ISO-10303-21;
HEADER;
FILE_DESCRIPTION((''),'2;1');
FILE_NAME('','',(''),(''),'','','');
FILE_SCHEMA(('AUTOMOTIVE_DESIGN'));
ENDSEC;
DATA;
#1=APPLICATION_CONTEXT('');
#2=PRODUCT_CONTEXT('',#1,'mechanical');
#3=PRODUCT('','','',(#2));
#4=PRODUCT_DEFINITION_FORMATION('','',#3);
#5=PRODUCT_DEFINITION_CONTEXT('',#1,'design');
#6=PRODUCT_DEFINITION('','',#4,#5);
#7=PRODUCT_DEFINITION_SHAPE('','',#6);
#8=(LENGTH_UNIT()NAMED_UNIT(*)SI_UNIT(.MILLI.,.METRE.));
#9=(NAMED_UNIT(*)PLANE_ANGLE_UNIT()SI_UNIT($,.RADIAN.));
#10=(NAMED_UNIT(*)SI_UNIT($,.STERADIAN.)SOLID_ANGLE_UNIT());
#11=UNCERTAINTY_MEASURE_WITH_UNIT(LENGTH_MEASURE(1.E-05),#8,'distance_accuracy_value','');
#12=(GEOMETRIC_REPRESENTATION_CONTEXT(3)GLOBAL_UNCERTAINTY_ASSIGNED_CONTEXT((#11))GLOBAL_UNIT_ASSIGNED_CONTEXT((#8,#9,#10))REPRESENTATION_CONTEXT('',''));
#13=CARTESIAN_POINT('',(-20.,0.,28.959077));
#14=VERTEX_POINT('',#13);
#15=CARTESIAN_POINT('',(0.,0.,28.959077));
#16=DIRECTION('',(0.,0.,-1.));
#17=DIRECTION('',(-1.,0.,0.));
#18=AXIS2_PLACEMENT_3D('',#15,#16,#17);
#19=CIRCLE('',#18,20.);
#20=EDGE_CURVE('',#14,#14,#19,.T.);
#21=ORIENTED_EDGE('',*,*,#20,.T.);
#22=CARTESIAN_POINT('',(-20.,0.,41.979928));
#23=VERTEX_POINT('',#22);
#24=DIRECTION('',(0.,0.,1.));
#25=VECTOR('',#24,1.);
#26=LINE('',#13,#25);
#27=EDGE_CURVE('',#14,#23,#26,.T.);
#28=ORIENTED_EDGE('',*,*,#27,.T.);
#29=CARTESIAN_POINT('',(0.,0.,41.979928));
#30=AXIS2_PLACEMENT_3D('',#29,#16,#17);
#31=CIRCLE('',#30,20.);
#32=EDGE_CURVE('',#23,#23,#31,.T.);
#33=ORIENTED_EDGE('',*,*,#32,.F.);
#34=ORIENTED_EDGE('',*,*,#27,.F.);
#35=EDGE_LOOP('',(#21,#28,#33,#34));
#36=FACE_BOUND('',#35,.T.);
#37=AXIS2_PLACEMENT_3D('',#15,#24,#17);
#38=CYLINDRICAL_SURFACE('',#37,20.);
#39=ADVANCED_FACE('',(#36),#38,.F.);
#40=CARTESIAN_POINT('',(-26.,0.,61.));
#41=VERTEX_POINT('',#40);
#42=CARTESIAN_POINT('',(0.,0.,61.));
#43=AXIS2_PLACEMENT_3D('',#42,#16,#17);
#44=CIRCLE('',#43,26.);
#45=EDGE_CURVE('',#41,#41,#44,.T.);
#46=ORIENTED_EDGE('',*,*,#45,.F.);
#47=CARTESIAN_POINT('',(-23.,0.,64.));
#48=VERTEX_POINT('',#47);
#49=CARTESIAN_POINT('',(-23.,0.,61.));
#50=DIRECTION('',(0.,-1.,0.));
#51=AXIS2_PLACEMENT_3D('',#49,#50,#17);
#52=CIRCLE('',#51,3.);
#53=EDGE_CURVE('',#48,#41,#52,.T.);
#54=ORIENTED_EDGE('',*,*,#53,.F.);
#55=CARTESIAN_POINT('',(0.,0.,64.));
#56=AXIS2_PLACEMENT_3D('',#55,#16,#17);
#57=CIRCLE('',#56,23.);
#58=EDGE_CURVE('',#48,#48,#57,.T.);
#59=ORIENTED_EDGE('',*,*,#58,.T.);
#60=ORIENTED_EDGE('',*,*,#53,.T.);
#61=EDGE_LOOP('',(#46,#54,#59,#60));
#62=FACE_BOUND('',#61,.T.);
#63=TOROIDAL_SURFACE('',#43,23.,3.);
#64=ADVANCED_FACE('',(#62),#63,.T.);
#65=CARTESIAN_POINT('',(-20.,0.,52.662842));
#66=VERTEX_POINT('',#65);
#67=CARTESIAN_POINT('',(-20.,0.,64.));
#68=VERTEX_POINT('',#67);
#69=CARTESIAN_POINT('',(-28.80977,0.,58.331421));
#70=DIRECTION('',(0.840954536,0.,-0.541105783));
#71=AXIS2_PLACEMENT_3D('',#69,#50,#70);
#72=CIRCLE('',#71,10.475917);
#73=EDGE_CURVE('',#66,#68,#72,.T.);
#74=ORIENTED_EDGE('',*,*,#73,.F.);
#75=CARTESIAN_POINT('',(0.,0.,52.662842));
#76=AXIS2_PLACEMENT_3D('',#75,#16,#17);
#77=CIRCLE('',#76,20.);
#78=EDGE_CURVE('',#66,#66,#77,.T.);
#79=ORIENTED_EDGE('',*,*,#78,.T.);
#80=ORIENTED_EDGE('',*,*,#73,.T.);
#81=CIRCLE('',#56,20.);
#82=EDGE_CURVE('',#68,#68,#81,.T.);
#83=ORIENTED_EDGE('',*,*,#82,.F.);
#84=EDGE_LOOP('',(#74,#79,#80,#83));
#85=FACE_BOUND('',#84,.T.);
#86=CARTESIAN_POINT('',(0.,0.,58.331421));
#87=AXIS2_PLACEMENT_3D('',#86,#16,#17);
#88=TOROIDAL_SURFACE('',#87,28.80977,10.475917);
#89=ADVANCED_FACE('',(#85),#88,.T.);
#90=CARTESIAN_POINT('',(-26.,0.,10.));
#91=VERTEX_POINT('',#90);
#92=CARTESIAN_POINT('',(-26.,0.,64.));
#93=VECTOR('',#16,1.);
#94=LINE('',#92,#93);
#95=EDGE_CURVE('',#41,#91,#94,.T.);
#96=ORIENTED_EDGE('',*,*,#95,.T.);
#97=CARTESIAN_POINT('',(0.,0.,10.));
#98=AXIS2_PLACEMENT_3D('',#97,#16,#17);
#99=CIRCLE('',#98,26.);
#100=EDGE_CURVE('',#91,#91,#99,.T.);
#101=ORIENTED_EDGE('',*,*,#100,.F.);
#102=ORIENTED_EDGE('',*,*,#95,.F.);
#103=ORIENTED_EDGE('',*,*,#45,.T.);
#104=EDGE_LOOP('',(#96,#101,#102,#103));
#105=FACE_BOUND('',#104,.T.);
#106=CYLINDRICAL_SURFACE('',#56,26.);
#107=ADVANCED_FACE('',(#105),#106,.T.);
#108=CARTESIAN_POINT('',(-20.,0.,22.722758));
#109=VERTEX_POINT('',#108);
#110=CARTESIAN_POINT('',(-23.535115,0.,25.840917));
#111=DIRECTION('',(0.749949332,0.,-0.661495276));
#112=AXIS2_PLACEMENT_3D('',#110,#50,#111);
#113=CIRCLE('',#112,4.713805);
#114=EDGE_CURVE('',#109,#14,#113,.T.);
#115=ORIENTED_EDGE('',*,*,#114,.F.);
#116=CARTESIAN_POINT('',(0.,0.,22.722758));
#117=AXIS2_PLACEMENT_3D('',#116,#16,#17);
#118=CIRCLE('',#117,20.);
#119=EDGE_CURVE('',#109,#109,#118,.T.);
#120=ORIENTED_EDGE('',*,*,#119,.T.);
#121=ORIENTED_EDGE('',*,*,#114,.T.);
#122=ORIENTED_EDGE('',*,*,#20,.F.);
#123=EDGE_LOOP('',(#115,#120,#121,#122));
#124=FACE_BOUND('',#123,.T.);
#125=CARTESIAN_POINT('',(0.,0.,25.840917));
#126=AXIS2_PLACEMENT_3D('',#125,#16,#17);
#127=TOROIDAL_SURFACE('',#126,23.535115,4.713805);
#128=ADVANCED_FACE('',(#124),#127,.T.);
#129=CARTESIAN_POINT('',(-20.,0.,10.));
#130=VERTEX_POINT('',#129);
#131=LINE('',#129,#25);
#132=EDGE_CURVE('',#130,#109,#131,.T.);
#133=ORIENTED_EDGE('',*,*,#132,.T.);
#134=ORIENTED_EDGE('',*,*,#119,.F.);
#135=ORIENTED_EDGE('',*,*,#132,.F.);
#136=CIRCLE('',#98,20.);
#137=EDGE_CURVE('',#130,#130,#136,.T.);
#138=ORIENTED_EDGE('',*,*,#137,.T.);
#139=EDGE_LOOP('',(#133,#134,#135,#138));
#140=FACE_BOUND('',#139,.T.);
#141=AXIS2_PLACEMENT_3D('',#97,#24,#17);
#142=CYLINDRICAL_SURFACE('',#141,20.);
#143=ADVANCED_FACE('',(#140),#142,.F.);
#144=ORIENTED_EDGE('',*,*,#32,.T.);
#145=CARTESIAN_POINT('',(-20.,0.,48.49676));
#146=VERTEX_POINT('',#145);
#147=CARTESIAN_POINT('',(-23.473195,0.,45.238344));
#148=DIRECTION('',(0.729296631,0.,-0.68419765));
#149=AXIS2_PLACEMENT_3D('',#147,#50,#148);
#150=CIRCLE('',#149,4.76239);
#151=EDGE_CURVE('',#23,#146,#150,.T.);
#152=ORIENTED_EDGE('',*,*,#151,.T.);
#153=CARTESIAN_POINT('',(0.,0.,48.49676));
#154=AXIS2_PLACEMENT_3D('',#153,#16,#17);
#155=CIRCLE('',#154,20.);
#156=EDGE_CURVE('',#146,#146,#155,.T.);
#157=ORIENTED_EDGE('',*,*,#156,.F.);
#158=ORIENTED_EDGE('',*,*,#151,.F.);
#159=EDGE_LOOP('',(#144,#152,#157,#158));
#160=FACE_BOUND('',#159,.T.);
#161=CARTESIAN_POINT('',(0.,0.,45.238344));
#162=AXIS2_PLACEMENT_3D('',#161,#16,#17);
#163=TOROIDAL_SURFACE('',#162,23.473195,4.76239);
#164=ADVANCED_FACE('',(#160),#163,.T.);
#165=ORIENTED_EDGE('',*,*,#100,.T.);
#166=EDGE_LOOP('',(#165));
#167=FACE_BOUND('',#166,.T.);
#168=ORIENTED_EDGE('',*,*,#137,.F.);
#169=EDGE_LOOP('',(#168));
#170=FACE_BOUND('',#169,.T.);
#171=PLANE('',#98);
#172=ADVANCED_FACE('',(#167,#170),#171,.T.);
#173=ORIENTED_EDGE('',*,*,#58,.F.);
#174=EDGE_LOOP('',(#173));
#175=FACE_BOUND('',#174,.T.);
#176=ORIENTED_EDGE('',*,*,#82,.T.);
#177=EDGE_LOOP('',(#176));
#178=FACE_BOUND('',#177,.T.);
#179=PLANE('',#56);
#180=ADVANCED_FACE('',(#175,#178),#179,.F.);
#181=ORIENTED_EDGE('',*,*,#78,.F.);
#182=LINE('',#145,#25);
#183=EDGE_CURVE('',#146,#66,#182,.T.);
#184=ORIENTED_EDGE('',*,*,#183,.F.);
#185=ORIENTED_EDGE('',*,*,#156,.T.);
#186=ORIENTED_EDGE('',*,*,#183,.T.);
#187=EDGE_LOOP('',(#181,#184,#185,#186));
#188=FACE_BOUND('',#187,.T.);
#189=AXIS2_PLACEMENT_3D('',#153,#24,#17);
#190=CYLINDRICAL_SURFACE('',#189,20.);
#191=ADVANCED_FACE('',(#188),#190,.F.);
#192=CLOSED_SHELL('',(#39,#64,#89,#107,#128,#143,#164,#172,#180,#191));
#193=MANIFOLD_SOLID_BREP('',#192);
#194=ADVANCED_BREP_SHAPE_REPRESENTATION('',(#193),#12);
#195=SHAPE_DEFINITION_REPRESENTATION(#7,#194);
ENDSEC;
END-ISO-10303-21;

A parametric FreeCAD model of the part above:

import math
import FreeCAD as App
import Part
import Sketcher
Q = App.Units.Quantity


def edges_at(feature, points):
    """Names of the edges that pass closest to the given points."""
    edges = feature.Shape.Edges
    near = lambda p: min(range(len(edges)), key=lambda i: edges[i].distToShape(Part.Vertex(*p))[0])
    return sorted({f"Edge{near(p) + 1}" for p in points})

doc = App.newDocument("Part")
body = doc.addObject("PartDesign::Body", "Body")

# Sketch on XZ plane
sketch1 = doc.addObject("Sketcher::SketchObject", "Sketch")
body.addObject(sketch1)
sketch1.AttachmentSupport = (doc.XZ_Plane, [""])
sketch1.MapMode = "FlatFace"
sketch1.addGeometry([
    Part.ArcOfCircle(Part.Circle(App.Vector(-28.80977, 58.331421, 0), App.Vector(0, 0, 1), 10.475917), math.radians(-32.758946), math.radians(32.758946)),  # 0
    Part.LineSegment(App.Vector(-20, 64, 0), App.Vector(-26, 64, 0)),  # 1
    Part.LineSegment(App.Vector(-26, 64, 0), App.Vector(-26, 10, 0)),  # 2
    Part.LineSegment(App.Vector(-26, 10, 0), App.Vector(-20, 10, 0)),  # 3
    Part.LineSegment(App.Vector(-20, 10, 0), App.Vector(-20, 22.722758, 0)),  # 4
    Part.ArcOfCircle(Part.Circle(App.Vector(-23.535115, 25.840917, 0), App.Vector(0, 0, 1), 4.713805), math.radians(-41.414011), math.radians(41.414011)),  # 5
    Part.LineSegment(App.Vector(-20, 28.959077, 0), App.Vector(-20, 41.979928, 0)),  # 6
    Part.ArcOfCircle(Part.Circle(App.Vector(-23.473195, 45.238344, 0), App.Vector(0, 0, 1), 4.76239), math.radians(-43.172539), math.radians(43.172539)),  # 7
    Part.LineSegment(App.Vector(-20, 48.49676, 0), App.Vector(-20, 52.662842, 0)),  # 8
], False)
sketch1.addConstraint([
    Sketcher.Constraint("Coincident", 0, 2, 1, 1),
    Sketcher.Constraint("Coincident", 1, 2, 2, 1),
    Sketcher.Constraint("Coincident", 2, 2, 3, 1),
    Sketcher.Constraint("Coincident", 3, 2, 4, 1),
    Sketcher.Constraint("Coincident", 4, 2, 5, 1),
    Sketcher.Constraint("Coincident", 5, 2, 6, 1),
    Sketcher.Constraint("Coincident", 6, 2, 7, 1),
    Sketcher.Constraint("Coincident", 7, 2, 8, 1),
    Sketcher.Constraint("Coincident", 8, 2, 0, 1),
    Sketcher.Constraint("Horizontal", 1),
    Sketcher.Constraint("Vertical", 2),
    Sketcher.Constraint("Horizontal", 3),
    Sketcher.Constraint("Vertical", 4),
    Sketcher.Constraint("Vertical", 6),
    Sketcher.Constraint("Vertical", 8),
    Sketcher.Constraint("Vertical", 0, 2, 3, 2),
    Sketcher.Constraint("Vertical", 4, 2, 5, 2),
    Sketcher.Constraint("Vertical", 6, 2, 7, 2),
    Sketcher.Constraint("DistanceX", 1, 2, 1, 1, Q("6 mm")),
    Sketcher.Constraint("DistanceY", 2, 2, 2, 1, Q("54 mm")),
    Sketcher.Constraint("DistanceX", 0, 2, -1, 1, Q("20 mm")),
    Sketcher.Constraint("DistanceY", -1, 1, 0, 2, Q("64 mm")),
    Sketcher.Constraint("Radius", 7, Q("4.76239 mm")),
    Sketcher.Constraint("Radius", 0, Q("10.475917 mm")),
    Sketcher.Constraint("Radius", 5, Q("4.713805 mm")),
    Sketcher.Constraint("DistanceY", 6, 1, 6, 2, Q("13.020851 mm")),
    Sketcher.Constraint("DistanceY", 8, 1, 8, 2, Q("4.166082 mm")),
    Sketcher.Constraint("DistanceY", 4, 1, 4, 2, Q("12.722758 mm")),
    Sketcher.Constraint("DistanceX", 0, 3, -1, 1, Q("28.80977 mm")),
    Sketcher.Constraint("DistanceX", 5, 3, 7, 3, Q("0.06192 mm")),
])
revolution = doc.addObject("PartDesign::Revolution", "Revolution")
body.addObject(revolution)
revolution.Profile = sketch1
revolution.ReferenceAxis = (sketch1, ["V_Axis"])
revolution.Angle = 360
doc.recompute()

fillet = doc.addObject("PartDesign::Fillet", "Fillet")
body.addObject(fillet)
fillet.Base = (revolution, edges_at(revolution, [(26, 0, 64)]))
fillet.Radius = 3

doc.recompute()
